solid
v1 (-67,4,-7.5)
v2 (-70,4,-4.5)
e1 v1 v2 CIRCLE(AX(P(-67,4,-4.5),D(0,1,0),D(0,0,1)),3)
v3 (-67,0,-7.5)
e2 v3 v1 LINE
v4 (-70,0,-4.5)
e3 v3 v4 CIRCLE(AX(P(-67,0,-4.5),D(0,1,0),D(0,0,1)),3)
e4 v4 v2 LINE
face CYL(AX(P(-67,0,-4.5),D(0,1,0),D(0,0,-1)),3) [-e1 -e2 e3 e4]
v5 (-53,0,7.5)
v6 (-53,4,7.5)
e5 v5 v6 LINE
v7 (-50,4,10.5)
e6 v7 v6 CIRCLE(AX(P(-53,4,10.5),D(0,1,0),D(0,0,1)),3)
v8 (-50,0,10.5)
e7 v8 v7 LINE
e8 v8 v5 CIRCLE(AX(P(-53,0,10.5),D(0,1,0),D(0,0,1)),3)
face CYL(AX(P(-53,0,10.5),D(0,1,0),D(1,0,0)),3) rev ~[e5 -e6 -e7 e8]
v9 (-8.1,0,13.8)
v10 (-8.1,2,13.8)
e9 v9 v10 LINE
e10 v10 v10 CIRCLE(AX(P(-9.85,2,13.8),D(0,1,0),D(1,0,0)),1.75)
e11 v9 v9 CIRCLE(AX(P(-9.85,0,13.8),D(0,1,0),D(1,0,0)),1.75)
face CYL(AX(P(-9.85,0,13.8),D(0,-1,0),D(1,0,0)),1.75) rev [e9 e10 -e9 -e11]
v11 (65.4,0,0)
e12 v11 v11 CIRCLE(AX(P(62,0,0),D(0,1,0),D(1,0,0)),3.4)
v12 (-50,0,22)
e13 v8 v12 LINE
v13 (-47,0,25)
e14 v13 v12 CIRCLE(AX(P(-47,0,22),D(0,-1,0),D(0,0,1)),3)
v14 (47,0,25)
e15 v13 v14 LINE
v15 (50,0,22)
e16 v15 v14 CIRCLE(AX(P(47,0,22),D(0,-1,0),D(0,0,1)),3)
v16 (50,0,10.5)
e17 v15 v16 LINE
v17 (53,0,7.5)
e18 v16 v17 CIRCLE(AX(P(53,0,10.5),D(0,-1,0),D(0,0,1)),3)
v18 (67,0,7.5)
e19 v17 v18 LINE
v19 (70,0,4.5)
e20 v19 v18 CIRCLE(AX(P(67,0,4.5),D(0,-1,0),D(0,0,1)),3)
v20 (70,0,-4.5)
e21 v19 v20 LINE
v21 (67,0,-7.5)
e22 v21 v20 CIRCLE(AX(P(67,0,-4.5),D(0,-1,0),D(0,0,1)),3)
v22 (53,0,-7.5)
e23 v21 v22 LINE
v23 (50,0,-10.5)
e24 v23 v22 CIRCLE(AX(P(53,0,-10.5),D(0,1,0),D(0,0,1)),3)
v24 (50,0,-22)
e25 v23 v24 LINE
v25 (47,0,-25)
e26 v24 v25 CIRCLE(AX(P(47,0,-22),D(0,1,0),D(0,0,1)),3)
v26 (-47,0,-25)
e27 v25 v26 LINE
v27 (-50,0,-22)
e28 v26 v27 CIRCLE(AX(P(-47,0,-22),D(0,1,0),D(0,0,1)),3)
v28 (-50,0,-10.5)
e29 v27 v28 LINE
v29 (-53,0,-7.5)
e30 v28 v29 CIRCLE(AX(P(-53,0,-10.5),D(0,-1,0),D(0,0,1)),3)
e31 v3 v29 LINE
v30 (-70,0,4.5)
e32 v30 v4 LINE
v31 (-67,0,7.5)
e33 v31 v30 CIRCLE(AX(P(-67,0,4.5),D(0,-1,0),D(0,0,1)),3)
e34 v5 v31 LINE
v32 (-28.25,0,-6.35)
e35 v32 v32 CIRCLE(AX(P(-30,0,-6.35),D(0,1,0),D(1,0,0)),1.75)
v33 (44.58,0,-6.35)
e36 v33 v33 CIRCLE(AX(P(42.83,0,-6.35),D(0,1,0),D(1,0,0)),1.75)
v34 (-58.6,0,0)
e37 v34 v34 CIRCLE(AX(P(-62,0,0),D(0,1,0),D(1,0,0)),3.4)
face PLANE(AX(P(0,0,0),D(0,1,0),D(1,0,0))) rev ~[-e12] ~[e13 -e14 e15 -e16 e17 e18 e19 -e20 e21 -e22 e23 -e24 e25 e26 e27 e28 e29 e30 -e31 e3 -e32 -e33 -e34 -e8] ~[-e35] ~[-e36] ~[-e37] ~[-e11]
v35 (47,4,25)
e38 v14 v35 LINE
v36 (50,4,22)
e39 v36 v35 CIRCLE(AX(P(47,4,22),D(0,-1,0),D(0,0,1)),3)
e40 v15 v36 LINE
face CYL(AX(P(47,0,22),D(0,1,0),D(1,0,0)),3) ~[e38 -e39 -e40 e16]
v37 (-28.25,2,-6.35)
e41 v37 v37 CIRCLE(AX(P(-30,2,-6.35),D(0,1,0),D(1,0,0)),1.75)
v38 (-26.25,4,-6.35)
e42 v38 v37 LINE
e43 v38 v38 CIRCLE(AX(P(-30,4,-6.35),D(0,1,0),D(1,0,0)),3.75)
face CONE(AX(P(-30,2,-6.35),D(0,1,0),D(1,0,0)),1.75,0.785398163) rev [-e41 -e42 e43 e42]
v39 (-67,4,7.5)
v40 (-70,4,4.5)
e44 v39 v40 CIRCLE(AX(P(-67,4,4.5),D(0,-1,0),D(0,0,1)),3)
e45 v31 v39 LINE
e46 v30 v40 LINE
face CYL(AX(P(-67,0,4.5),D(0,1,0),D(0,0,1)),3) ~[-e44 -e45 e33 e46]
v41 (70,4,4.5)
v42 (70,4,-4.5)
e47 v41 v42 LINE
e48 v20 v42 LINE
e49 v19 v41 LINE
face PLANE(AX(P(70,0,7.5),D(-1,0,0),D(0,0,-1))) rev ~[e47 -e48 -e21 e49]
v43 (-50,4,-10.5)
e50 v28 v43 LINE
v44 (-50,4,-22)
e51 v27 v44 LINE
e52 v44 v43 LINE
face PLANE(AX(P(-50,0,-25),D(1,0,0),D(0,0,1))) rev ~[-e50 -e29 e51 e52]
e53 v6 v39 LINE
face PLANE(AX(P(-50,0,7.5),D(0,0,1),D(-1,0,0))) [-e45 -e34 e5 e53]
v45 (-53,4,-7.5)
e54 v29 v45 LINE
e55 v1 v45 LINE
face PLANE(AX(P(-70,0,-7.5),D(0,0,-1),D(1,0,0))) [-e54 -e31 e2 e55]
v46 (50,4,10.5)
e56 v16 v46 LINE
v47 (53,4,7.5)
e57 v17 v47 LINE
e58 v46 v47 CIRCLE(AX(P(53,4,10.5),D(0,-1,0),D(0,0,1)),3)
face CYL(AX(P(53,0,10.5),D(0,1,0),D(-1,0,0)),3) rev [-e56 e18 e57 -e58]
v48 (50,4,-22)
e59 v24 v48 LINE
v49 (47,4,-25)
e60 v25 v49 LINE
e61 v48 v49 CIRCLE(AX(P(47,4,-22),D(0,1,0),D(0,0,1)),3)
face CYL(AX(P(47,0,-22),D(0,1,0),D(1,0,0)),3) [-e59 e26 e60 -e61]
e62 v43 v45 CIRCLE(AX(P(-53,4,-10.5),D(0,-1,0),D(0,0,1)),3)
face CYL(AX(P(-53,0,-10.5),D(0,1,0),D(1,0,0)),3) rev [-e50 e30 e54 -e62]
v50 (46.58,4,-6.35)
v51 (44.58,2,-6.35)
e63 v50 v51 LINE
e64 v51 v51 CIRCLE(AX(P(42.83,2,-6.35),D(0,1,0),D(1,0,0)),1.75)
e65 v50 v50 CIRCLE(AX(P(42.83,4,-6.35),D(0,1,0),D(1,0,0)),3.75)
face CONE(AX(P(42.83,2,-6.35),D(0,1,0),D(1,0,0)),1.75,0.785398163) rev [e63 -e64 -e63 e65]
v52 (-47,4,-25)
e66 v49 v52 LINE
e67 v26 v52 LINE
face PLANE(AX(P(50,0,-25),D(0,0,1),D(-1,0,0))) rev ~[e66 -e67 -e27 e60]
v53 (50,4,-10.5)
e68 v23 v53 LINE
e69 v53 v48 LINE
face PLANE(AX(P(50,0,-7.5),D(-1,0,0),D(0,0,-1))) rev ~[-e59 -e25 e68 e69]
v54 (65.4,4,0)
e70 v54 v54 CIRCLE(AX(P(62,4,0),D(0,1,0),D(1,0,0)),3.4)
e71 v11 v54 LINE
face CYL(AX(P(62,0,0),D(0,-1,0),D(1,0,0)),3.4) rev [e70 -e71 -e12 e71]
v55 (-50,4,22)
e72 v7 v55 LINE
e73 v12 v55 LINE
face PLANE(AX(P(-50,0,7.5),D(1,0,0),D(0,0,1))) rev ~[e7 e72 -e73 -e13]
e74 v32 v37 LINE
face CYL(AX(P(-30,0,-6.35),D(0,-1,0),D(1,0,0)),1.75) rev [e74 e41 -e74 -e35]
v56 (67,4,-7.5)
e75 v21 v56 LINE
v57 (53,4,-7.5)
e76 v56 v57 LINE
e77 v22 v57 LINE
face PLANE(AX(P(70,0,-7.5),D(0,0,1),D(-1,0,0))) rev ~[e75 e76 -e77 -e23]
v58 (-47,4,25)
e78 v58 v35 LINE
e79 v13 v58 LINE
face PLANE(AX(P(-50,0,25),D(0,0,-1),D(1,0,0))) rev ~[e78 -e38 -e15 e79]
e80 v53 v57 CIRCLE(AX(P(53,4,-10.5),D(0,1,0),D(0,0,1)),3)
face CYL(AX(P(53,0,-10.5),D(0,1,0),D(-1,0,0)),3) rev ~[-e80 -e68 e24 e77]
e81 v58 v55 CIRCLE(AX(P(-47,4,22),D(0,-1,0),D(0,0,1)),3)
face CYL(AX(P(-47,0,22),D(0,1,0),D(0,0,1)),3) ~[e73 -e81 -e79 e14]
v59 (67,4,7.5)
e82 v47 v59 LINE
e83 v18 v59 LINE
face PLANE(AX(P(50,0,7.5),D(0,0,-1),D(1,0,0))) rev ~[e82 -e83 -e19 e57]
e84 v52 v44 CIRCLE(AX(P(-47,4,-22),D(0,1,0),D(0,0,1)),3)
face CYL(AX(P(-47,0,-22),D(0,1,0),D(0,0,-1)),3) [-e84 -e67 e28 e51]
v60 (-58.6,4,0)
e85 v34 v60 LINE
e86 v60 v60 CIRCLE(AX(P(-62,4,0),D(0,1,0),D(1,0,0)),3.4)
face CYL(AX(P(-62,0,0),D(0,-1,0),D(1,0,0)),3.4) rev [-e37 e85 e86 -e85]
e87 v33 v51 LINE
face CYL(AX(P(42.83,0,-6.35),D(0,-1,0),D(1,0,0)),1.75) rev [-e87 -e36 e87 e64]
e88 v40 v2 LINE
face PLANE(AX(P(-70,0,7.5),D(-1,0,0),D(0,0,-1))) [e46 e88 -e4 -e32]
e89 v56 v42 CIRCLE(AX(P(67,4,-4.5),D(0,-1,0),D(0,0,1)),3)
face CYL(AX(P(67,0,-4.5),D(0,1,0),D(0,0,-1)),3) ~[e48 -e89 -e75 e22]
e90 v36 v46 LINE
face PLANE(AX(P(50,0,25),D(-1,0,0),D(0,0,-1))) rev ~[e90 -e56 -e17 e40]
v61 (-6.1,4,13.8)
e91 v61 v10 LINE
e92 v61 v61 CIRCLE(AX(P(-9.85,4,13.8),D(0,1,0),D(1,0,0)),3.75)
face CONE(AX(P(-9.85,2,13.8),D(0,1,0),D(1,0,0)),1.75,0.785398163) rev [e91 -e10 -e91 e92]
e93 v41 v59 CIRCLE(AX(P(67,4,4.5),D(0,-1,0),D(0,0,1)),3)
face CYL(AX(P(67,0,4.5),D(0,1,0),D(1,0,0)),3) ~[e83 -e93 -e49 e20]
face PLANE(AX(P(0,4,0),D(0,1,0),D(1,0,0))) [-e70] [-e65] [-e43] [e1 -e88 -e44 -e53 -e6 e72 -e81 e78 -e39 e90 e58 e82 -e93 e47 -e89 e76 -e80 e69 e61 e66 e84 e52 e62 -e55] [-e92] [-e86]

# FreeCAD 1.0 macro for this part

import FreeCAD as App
import Part
import Sketcher

V = App.Vector
Q = App.Units.Quantity


def edges_at(feature, points):
    """Names of the edges that pass closest to the given points."""
    edges = feature.Shape.Edges
    near = lambda p: min(range(len(edges)), key=lambda i: edges[i].distToShape(Part.Vertex(*p))[0])
    return sorted({f"Edge{near(p) + 1}" for p in points})


def add_polygon(sketch, points):
    """Adds a closed chain of lines whose ends are joined by coincident constraints."""
    first, n = sketch.GeometryCount, len(points)
    for a, b in zip(points, points[1:] + points[:1]):
        sketch.addGeometry(Part.LineSegment(App.Vector(*a, 0), App.Vector(*b, 0)), False)
    for i in range(n):
        sketch.addConstraint(Sketcher.Constraint("Coincident", first + i, 2, first + (i + 1) % n, 1))

doc = App.newDocument("Part")
body = doc.addObject("PartDesign::Body", "Body")

# Sketch on XZ plane
sketch1 = body.newObject("Sketcher::SketchObject", "Sketch")
sketch1.AttachmentSupport = (doc.getObject("XZ_Plane"), [""])
sketch1.MapMode = "FlatFace"
add_polygon(sketch1, [(50, -7.5), (50, -25), (-50, -25), (-50, -7.5), (-70, -7.5), (-70, 7.5), (-50, 7.5), (-50, 25), (50, 25), (50, 7.5), (70, 7.5), (70, -7.5)])  # lines 0-11
sketch1.addGeometry(Part.Circle(V(-9.85, 13.8, 0), V(0, 0, 1), 1.75), False)  # 12
sketch1.addGeometry(Part.Circle(V(-30, -6.35, 0), V(0, 0, 1), 1.75), False)  # 13
sketch1.addGeometry(Part.Circle(V(42.83, -6.35, 0), V(0, 0, 1), 1.75), False)  # 14
sketch1.addGeometry(Part.Circle(V(62, 0, 0), V(0, 0, 1), 3.4), False)  # 15
sketch1.addGeometry(Part.Circle(V(-62, 0, 0), V(0, 0, 1), 3.4), False)  # 16
sketch1.addConstraint([
    Sketcher.Constraint("Vertical", 0),
    Sketcher.Constraint("Horizontal", 1),
    Sketcher.Constraint("Vertical", 2),
    Sketcher.Constraint("Horizontal", 3),
    Sketcher.Constraint("Vertical", 4),
    Sketcher.Constraint("Horizontal", 5),
    Sketcher.Constraint("Vertical", 6),
    Sketcher.Constraint("Horizontal", 7),
    Sketcher.Constraint("Vertical", 8),
    Sketcher.Constraint("Horizontal", 9),
    Sketcher.Constraint("Vertical", 10),
    Sketcher.Constraint("Horizontal", 11),
    Sketcher.Constraint("Equal", 12, 13),
    Sketcher.Constraint("Equal", 13, 14),
    Sketcher.Constraint("Equal", 15, 16),
    Sketcher.Constraint("Symmetric", 15, 3, 16, 3, -1, 1),
    Sketcher.Constraint("Symmetric", 0, 2, 6, 2, -1, 1),
    Sketcher.Constraint("Symmetric", 2, 2, 8, 2, -1, 1),
    Sketcher.Constraint("Symmetric", 4, 2, 10, 2, -1, 1),
    Sketcher.Constraint("Symmetric", 5, 2, 8, 2, -2),
    Sketcher.Constraint("PointOnObject", 15, 3, -1),
    Sketcher.Constraint("Horizontal", 13, 3, 14, 3),
    Sketcher.Constraint("Diameter", 12, Q("3.5 mm")),
    Sketcher.Constraint("Diameter", 15, Q("6.8 mm")),
    Sketcher.Constraint("DistanceX", 1, 2, 1, 1, Q("100 mm")),
    Sketcher.Constraint("DistanceX", 3, 2, 3, 1, Q("20 mm")),
    Sketcher.Constraint("DistanceY", 4, 1, 4, 2, Q("15 mm")),
    Sketcher.Constraint("DistanceX", 0, 2, 15, 3, Q("12 mm")),
    Sketcher.Constraint("DistanceX", 1, 2, 13, 3, Q("20 mm")),
    Sketcher.Constraint("DistanceY", 0, 2, 7, 2, Q("50 mm")),
    Sketcher.Constraint("DistanceX", 13, 3, 12, 3, Q("20.15 mm")),
    Sketcher.Constraint("DistanceY", 13, 3, 12, 3, Q("20.15 mm")),
    Sketcher.Constraint("DistanceX", 13, 3, 14, 3, Q("72.83 mm")),
    Sketcher.Constraint("DistanceY", 0, 2, 14, 3, Q("18.65 mm")),
])
pad1 = body.newObject("PartDesign::Pad", "Pad")
pad1.Profile = sketch1
pad1.Length = 4
pad1.Reversed = True
doc.recompute()

fillet = body.newObject("PartDesign::Fillet", "Fillet")
fillet.Base = (pad1, edges_at(pad1, [
    (50, 2, 7.5),
    (50, 2, 25),
    (70, 2, 7.5),
    (70, 2, -7.5),
    (50, 2, -7.5),
    (50, 2, -25),
    (-50, 2, -25),
    (-50, 2, -7.5),
    (-70, 2, -7.5),
    (-70, 2, 7.5),
    (-50, 2, 7.5),
    (-50, 2, 25),
]))
fillet.Radius = 3
doc.recompute()

chamfer = body.newObject("PartDesign::Chamfer", "Chamfer")
chamfer.Base = (fillet, edges_at(fillet, [(41.198, 4, -6.983), (-11.482, 4, 13.167), (-31.632, 4, -6.983)]))
chamfer.Size = 2

doc.recompute()
